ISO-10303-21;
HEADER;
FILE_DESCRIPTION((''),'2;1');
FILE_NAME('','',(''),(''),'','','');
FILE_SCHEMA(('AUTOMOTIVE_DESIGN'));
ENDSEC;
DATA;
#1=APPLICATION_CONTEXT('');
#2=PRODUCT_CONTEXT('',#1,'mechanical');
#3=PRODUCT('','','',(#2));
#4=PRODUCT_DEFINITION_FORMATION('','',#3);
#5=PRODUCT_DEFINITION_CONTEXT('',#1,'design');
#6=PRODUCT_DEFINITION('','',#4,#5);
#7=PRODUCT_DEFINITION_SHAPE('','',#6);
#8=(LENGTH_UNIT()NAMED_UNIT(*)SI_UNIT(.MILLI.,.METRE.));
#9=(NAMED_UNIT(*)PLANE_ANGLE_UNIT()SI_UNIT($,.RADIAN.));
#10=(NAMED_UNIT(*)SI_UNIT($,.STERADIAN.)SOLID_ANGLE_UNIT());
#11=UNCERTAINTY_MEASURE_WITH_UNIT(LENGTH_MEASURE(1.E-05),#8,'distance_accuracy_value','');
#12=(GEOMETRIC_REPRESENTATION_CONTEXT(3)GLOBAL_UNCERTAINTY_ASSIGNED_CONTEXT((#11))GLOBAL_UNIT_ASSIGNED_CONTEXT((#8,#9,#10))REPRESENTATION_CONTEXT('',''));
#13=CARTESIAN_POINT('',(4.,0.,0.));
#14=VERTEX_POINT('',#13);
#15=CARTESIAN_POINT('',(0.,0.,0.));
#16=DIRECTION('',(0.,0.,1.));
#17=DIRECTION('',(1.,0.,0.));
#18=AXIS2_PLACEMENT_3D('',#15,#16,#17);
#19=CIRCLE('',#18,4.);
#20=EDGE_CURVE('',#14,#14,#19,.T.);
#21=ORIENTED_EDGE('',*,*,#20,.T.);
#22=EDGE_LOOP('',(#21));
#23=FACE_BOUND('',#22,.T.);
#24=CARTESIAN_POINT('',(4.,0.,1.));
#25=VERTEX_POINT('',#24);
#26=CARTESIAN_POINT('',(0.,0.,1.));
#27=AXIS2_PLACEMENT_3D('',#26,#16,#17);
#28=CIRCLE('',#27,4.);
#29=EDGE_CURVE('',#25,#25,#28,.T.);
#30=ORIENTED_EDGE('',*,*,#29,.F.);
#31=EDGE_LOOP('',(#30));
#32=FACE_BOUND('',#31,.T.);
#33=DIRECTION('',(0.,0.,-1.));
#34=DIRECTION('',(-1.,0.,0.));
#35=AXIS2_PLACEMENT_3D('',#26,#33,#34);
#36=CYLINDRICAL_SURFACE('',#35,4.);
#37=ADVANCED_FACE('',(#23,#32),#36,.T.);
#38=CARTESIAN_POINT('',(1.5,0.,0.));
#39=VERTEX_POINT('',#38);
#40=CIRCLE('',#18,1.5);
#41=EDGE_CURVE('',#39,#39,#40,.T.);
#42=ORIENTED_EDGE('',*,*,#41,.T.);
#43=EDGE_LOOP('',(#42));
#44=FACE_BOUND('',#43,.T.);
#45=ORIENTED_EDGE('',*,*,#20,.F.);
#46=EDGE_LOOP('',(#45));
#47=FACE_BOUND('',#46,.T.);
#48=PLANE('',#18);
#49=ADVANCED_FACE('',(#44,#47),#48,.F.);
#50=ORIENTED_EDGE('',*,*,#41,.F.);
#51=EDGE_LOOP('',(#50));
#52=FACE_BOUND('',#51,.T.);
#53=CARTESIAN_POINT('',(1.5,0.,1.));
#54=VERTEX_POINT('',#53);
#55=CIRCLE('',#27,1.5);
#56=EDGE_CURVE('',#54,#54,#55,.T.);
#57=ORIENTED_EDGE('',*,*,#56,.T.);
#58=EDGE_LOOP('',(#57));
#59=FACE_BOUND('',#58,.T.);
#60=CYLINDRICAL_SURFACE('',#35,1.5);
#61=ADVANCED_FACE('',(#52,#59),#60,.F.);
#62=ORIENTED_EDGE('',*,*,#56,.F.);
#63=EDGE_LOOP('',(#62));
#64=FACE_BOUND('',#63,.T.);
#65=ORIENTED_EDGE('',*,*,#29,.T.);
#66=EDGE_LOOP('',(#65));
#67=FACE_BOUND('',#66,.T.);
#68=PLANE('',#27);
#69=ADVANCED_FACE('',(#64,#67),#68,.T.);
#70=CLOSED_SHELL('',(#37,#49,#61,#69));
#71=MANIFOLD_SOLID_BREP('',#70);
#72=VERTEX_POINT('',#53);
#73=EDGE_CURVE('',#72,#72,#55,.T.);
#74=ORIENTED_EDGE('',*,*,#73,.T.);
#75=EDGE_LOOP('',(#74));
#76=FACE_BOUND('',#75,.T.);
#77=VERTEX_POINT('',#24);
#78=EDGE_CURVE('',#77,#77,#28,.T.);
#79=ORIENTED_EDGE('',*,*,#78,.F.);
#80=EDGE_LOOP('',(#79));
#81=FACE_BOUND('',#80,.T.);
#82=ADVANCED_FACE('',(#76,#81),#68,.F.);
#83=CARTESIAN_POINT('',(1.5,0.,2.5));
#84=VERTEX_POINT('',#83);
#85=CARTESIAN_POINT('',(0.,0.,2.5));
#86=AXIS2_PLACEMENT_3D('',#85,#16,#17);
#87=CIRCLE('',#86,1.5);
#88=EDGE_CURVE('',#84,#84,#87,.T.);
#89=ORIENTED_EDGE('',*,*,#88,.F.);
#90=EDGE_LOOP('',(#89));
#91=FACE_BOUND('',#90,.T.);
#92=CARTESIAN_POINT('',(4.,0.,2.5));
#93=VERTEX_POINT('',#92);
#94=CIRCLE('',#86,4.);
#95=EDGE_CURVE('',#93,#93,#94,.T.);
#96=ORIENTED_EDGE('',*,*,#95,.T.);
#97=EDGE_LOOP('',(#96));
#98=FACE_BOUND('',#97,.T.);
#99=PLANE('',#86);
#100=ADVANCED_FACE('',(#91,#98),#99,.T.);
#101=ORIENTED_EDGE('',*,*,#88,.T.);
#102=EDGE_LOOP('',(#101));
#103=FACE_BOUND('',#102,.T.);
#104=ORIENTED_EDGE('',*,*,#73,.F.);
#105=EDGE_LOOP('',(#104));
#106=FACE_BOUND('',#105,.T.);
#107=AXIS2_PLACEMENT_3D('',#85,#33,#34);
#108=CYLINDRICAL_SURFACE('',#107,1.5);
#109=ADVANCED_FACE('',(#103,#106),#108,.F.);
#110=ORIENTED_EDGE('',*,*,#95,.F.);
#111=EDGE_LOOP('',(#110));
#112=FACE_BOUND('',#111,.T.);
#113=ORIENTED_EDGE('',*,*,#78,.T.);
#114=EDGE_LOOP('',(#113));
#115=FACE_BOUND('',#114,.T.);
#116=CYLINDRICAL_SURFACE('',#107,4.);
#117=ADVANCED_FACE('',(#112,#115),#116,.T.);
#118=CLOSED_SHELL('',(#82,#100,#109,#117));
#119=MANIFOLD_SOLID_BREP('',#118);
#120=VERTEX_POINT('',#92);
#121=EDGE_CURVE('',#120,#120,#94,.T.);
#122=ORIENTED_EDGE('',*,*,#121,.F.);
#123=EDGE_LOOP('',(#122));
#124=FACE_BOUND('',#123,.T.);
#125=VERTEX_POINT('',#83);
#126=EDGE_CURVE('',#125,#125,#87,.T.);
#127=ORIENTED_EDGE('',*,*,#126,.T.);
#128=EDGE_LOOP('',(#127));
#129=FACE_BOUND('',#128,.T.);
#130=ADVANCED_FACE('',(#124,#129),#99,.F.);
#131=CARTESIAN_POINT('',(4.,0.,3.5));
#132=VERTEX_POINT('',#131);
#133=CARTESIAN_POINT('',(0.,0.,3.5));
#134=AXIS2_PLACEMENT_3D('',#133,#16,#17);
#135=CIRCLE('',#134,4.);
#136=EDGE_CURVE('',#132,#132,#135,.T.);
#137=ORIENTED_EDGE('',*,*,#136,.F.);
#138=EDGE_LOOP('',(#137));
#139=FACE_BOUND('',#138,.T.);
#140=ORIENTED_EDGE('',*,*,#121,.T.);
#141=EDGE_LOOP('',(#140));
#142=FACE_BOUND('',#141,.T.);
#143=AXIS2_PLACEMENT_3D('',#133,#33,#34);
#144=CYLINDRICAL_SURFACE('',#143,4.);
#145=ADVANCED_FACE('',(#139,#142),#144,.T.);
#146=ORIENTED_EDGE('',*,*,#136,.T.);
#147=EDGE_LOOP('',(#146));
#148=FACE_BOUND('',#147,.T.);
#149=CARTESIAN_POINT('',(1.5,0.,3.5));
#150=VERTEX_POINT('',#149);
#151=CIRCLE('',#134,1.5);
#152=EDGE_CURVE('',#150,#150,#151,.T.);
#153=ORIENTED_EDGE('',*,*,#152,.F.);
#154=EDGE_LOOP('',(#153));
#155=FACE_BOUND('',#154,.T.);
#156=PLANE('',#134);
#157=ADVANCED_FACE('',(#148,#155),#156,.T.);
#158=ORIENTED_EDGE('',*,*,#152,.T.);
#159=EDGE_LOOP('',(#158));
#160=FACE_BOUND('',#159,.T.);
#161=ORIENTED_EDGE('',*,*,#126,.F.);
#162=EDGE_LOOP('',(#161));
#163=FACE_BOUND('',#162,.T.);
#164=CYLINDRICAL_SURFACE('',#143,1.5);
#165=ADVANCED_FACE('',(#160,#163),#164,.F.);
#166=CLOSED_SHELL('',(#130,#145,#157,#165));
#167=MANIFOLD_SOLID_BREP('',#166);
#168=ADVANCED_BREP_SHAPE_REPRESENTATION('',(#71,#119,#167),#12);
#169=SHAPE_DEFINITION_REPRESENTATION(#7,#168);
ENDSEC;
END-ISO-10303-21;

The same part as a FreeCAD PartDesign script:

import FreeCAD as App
import Part
import Sketcher

V = App.Vector
Q = App.Units.Quantity

doc = App.newDocument("Part")
body = doc.addObject("PartDesign::Body", "Body")

# Sketch on XY plane
sketch1 = body.newObject("Sketcher::SketchObject", "Sketch")
sketch1.AttachmentSupport = (doc.getObject("XY_Plane"), [""])
sketch1.MapMode = "FlatFace"
sketch1.addGeometry(Part.Circle(V(0, 0, 0), V(0, 0, 1), 4), False)
sketch1.addGeometry(Part.Circle(V(0, 0, 0), V(0, 0, 1), 1.5), False)
sketch1.addConstraint(Sketcher.Constraint("Coincident", 0, 3, -1, 1))
sketch1.addConstraint(Sketcher.Constraint("Coincident", 1, 3, -1, 1))
sketch1.addConstraint(Sketcher.Constraint("Diameter", 0, Q("8 mm")))
sketch1.addConstraint(Sketcher.Constraint("Diameter", 1, Q("3 mm")))
pad1 = body.newObject("PartDesign::Pad", "Pad")
pad1.Profile = sketch1
pad1.Length = 1
body2 = doc.addObject("PartDesign::Body", "Body001")

# Sketch on XY plane
sketch2 = body2.newObject("Sketcher::SketchObject", "Sketch001")
sketch2.AttachmentSupport = (doc.getObject("XY_Plane001"), [""])
sketch2.MapMode = "FlatFace"
sketch2.AttachmentOffset = App.Placement(V(0, 0, 1), App.Rotation())
sketch2.addGeometry(Part.Circle(V(0, 0, 0), V(0, 0, 1), 4), False)
sketch2.addGeometry(Part.Circle(V(0, 0, 0), V(0, 0, 1), 1.5), False)
sketch2.addConstraint(Sketcher.Constraint("Coincident", 0, 3, -1, 1))
sketch2.addConstraint(Sketcher.Constraint("Coincident", 1, 3, -1, 1))
sketch2.addConstraint(Sketcher.Constraint("Diameter", 0, Q("8 mm")))
sketch2.addConstraint(Sketcher.Constraint("Diameter", 1, Q("3 mm")))
pad2 = body2.newObject("PartDesign::Pad", "Pad001")
pad2.Profile = sketch2
pad2.Length = 1.5
body3 = doc.addObject("PartDesign::Body", "Body002")

# Sketch on XY plane
sketch3 = body3.newObject("Sketcher::SketchObject", "Sketch002")
sketch3.AttachmentSupport = (doc.getObject("XY_Plane002"), [""])
sketch3.MapMode = "FlatFace"
sketch3.AttachmentOffset = App.Placement(V(0, 0, 2.5), App.Rotation())
sketch3.addGeometry(Part.Circle(V(0, 0, 0), V(0, 0, 1), 4), False)
sketch3.addGeometry(Part.Circle(V(0, 0, 0), V(0, 0, 1), 1.5), False)
sketch3.addConstraint(Sketcher.Constraint("Coincident", 0, 3, -1, 1))
sketch3.addConstraint(Sketcher.Constraint("Coincident", 1, 3, -1, 1))
sketch3.addConstraint(Sketcher.Constraint("Diameter", 0, Q("8 mm")))
sketch3.addConstraint(Sketcher.Constraint("Diameter", 1, Q("3 mm")))
pad3 = body3.newObject("PartDesign::Pad", "Pad002")
pad3.Profile = sketch3
pad3.Length = 1

doc.recompute()
